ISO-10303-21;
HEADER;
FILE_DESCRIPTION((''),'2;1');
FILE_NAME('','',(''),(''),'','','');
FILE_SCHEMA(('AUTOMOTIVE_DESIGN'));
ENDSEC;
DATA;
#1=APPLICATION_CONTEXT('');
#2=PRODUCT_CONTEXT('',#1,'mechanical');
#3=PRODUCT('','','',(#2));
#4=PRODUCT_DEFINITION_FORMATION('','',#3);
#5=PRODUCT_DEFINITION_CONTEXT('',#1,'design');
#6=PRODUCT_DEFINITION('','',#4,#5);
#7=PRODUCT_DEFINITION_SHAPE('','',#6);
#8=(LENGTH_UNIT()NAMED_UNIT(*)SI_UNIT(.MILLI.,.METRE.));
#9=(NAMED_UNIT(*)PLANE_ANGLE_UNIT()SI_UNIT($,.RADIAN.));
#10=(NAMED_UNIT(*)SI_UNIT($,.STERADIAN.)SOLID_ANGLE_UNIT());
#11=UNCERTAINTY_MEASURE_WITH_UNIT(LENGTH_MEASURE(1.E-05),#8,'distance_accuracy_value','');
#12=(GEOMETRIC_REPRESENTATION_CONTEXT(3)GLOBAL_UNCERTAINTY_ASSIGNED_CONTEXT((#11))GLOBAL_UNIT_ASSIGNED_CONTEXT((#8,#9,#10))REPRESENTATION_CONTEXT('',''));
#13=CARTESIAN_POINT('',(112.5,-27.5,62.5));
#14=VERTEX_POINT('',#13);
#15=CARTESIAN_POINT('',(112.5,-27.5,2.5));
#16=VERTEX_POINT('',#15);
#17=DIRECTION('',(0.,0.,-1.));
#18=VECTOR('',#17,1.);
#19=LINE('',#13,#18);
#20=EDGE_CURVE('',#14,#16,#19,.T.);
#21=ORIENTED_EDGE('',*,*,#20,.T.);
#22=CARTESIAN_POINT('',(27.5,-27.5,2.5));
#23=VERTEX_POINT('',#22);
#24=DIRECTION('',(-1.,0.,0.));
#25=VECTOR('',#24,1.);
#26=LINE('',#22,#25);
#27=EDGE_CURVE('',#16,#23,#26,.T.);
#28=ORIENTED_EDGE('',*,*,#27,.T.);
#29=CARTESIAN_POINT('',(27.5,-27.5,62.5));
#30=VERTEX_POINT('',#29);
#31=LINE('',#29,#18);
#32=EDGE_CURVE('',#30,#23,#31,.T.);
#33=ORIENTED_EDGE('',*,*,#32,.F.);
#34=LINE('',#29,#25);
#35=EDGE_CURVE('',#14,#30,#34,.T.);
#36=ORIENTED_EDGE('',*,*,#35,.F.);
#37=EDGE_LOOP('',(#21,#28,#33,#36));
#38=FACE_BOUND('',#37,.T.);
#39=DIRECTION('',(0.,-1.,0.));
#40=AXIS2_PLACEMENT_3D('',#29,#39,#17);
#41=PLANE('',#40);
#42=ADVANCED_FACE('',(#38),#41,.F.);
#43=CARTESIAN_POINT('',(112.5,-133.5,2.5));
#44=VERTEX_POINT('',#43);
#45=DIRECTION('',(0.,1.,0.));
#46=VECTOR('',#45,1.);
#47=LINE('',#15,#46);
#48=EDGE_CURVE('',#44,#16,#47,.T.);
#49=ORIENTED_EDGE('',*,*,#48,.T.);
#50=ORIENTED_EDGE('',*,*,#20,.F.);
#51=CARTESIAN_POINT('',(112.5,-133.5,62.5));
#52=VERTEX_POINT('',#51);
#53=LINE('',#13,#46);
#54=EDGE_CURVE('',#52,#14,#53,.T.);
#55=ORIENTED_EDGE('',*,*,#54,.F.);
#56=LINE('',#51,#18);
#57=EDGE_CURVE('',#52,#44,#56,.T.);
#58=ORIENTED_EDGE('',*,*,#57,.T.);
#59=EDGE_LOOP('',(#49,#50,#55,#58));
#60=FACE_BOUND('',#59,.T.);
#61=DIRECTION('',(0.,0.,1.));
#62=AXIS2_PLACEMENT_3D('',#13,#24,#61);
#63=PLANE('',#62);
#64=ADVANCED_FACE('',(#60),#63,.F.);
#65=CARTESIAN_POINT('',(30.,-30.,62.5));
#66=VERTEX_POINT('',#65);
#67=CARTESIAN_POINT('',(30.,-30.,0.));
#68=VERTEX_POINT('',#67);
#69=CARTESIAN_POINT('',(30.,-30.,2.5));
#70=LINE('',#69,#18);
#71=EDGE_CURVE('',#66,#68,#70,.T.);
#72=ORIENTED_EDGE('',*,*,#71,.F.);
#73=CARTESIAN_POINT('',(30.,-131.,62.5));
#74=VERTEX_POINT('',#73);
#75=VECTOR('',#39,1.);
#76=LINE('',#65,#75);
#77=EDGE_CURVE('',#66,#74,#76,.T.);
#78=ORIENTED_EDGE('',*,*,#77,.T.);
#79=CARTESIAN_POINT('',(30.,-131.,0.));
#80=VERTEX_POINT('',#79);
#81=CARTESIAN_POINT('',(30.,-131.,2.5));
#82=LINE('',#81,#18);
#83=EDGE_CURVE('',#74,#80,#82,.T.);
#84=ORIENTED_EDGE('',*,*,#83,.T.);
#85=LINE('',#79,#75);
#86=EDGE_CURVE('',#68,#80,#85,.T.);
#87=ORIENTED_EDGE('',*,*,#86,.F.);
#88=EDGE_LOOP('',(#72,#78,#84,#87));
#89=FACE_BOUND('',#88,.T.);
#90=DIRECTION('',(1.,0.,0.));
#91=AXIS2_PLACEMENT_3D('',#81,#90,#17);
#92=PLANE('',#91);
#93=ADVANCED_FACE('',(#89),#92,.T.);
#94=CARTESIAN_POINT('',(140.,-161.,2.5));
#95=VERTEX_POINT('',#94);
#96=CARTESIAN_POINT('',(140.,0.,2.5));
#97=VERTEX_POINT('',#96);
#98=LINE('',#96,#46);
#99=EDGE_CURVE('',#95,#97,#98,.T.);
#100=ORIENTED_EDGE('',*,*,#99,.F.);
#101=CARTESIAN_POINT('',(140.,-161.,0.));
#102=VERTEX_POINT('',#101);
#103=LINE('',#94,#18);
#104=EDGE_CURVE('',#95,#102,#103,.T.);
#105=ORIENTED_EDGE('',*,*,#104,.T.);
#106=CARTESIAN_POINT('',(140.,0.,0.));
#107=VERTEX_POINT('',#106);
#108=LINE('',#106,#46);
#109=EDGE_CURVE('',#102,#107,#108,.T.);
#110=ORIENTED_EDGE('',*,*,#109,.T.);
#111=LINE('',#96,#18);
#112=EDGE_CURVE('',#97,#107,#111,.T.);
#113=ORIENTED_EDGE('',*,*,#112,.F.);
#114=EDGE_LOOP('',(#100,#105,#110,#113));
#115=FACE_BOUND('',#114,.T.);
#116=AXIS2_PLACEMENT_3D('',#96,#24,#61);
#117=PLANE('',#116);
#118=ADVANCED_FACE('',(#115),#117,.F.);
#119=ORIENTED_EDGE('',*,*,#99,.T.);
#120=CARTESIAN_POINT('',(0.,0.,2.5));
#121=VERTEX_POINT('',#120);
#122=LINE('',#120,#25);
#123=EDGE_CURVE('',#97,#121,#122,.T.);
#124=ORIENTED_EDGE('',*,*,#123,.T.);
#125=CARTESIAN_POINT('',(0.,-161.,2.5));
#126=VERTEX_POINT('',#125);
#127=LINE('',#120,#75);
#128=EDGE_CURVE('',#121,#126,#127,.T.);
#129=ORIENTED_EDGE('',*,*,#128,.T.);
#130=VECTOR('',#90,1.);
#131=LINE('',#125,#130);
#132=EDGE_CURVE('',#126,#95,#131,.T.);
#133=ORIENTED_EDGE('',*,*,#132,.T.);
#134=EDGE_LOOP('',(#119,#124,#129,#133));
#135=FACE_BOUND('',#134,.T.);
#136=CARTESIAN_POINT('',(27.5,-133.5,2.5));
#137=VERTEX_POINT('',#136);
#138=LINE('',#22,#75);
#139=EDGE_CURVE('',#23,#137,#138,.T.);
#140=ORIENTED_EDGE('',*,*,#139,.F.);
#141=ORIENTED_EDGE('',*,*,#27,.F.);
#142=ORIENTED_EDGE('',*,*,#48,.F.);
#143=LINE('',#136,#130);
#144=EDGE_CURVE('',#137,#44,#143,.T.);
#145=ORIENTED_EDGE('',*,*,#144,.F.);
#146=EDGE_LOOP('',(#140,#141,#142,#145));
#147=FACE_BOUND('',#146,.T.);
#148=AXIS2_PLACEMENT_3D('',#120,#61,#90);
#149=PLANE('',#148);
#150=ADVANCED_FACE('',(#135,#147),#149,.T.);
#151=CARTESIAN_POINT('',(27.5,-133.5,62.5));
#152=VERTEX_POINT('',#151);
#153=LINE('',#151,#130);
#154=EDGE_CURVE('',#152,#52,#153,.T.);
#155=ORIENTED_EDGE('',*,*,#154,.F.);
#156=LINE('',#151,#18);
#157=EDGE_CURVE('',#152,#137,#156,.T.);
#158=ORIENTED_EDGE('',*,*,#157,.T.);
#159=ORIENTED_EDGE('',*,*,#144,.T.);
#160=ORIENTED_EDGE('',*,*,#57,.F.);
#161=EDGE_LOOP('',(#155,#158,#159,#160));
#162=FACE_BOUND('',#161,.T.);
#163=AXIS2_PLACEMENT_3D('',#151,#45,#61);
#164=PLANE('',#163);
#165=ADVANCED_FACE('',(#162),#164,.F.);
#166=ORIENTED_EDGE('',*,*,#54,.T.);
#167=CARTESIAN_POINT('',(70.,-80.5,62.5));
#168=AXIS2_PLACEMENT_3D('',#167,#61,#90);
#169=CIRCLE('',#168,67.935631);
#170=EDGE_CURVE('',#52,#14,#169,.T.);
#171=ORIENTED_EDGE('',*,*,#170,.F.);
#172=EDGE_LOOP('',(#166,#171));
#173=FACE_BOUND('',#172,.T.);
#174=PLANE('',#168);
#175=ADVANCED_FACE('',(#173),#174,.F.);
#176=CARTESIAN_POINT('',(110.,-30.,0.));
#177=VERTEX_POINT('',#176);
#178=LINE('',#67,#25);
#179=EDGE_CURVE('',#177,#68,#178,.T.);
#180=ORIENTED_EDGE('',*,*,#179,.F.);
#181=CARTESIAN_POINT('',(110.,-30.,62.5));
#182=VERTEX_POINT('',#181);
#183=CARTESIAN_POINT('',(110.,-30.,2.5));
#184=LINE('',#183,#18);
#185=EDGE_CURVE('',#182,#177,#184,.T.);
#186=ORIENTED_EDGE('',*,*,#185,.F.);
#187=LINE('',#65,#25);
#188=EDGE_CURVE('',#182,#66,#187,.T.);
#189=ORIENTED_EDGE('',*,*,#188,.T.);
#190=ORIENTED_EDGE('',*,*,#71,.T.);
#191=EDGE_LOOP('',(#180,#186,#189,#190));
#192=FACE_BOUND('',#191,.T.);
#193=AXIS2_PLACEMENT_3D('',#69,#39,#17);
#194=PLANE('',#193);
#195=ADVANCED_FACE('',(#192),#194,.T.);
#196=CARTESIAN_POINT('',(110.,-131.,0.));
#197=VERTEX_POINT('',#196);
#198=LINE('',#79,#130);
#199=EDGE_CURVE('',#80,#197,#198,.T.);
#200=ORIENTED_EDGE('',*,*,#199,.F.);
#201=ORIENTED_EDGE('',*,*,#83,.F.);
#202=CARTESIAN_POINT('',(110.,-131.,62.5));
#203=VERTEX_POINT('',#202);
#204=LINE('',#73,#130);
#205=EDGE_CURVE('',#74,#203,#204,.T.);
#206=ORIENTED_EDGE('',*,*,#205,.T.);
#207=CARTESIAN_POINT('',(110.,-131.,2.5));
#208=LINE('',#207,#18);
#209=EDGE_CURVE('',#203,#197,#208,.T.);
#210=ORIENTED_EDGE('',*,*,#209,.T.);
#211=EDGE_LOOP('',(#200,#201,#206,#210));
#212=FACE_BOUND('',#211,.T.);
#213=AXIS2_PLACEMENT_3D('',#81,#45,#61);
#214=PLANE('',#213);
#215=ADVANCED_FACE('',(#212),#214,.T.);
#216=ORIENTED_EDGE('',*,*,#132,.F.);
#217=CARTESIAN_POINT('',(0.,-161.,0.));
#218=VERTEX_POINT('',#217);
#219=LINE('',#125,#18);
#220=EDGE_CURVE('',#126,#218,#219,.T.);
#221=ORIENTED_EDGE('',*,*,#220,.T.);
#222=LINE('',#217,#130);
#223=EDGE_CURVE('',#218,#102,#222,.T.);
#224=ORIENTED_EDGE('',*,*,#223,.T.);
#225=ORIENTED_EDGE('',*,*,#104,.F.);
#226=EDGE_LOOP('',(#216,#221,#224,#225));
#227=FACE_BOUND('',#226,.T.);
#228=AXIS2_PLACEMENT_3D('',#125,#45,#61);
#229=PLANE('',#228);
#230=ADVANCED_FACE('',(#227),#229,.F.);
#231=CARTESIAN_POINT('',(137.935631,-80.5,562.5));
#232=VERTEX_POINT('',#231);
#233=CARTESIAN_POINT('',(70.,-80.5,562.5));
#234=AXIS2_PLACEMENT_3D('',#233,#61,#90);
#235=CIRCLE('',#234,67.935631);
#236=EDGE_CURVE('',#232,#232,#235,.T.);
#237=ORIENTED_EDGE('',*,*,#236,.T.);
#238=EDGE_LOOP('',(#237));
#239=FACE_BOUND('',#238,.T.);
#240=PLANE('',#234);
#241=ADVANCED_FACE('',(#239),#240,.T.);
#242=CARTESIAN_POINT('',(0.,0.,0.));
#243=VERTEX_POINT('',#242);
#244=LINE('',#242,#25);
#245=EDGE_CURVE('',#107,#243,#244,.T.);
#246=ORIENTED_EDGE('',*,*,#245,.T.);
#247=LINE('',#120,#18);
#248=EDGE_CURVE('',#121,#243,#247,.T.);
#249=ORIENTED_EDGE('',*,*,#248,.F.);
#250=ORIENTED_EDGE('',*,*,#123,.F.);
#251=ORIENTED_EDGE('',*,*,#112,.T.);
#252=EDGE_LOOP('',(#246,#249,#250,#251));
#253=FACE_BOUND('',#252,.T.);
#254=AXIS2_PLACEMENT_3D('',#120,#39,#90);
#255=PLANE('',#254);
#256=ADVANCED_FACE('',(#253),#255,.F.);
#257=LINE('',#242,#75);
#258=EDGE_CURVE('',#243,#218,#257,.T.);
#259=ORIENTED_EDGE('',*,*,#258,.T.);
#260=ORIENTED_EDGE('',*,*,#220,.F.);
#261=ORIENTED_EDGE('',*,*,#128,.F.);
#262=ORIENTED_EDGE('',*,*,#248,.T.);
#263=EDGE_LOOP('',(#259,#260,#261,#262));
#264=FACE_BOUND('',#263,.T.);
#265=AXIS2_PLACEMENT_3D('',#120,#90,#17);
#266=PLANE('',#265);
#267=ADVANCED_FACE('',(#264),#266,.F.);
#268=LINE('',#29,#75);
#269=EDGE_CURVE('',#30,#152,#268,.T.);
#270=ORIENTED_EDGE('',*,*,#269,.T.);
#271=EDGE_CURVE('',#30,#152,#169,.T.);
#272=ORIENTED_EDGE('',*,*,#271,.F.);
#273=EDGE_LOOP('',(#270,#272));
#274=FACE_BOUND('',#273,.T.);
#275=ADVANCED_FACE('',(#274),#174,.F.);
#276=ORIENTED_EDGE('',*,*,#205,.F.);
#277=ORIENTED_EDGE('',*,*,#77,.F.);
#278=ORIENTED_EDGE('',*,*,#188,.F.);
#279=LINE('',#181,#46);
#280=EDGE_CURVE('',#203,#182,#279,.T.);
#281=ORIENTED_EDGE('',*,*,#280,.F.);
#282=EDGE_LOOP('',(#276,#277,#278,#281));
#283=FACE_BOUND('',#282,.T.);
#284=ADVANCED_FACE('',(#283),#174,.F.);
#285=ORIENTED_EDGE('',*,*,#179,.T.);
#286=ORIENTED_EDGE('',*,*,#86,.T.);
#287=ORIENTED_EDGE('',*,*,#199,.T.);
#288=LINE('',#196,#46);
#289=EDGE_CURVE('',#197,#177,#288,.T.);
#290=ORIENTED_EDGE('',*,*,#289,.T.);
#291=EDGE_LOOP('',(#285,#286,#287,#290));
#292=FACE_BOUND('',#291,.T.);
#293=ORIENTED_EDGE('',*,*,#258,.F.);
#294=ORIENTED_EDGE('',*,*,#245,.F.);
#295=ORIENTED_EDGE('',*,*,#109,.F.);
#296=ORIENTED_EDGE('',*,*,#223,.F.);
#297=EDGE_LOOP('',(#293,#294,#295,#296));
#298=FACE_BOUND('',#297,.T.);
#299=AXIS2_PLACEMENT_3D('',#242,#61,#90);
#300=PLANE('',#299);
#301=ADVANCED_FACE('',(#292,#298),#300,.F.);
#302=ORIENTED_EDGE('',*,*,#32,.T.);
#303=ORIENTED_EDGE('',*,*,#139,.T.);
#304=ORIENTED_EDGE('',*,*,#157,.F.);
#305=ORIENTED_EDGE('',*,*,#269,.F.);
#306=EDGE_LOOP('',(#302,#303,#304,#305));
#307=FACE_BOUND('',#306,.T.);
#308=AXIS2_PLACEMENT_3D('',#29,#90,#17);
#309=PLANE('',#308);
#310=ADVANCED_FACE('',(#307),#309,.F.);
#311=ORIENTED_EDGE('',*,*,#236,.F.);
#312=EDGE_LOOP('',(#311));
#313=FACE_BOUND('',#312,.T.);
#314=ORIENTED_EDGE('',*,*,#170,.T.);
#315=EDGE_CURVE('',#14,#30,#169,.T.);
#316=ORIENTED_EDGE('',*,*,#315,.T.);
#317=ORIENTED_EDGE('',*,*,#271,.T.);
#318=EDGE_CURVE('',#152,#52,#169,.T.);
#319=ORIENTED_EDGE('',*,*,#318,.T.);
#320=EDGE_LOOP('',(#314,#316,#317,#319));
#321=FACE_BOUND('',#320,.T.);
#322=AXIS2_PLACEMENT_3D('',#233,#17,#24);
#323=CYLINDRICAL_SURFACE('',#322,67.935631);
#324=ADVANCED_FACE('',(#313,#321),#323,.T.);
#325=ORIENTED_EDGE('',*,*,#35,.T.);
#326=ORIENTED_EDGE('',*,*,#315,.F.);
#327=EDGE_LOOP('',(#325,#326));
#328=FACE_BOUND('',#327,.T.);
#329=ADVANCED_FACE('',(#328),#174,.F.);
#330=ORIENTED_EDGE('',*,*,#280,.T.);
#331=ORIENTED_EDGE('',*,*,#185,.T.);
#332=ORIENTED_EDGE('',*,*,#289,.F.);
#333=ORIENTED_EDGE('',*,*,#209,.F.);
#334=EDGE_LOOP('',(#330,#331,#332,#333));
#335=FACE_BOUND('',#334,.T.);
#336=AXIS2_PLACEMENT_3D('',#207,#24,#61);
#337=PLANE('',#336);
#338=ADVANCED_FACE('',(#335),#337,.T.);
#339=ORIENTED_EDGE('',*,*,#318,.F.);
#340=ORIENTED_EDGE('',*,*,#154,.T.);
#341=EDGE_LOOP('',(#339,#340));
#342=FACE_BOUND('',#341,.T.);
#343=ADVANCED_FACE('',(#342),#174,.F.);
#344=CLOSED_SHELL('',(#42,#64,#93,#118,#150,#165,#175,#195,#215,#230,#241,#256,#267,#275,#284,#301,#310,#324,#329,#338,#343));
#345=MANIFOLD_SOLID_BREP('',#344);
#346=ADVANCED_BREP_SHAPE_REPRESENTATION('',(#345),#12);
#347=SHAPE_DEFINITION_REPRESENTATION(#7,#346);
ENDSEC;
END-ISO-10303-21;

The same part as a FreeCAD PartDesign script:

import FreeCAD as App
import Part
import Sketcher
from FreeCAD import Vector
Q = App.Units.Quantity

doc = App.newDocument("Part")
params = doc.addObject("Spreadsheet::Sheet", "Params")
for row, (alias, value) in enumerate([
    ("sketch1_width", "140 mm"),
    ("sketch1_width2", "80 mm"),
    ("sketch1_height", "161 mm"),
    ("sketch1_height2", "101 mm"),
    ("pad1_length", "2.5 mm"),
    ("sketch2_width", "85 mm"),
    ("sketch2_width2", "80 mm"),
    ("sketch2_height", "106 mm"),
    ("sketch2_height2", "101 mm"),
    ("pad2_length", "60 mm"),
    ("pad3_length", "500 mm"),
], start=1):
    params.set(f"A{row}", alias)
    params.set(f"B{row}", "=" + value)
    params.setAlias(f"B{row}", alias)

body = doc.addObject("PartDesign::Body", "Body")

# Sketch on XY plane
sketch1 = body.newObject("Sketcher::SketchObject", "Sketch")
sketch1.AttachmentSupport = (doc.getObject("XY_Plane"), [""])
sketch1.MapMode = "FlatFace"
sketch1.addGeometry([
    Part.LineSegment(Vector(0, 0, 0), Vector(0, -161, 0)),  # 0
    Part.LineSegment(Vector(0, -161, 0), Vector(140, -161, 0)),  # 1
    Part.LineSegment(Vector(140, -161, 0), Vector(140, 0, 0)),  # 2
    Part.LineSegment(Vector(140, 0, 0), Vector(0, 0, 0)),  # 3
    Part.LineSegment(Vector(110, -131, 0), Vector(30, -131, 0)),  # 4
    Part.LineSegment(Vector(30, -131, 0), Vector(30, -30, 0)),  # 5
    Part.LineSegment(Vector(30, -30, 0), Vector(110, -30, 0)),  # 6
    Part.LineSegment(Vector(110, -30, 0), Vector(110, -131, 0)),  # 7
], False)
sketch1.addConstraint([
    Sketcher.Constraint("Coincident", 0, 2, 1, 1),
    Sketcher.Constraint("Coincident", 1, 2, 2, 1),
    Sketcher.Constraint("Coincident", 2, 2, 3, 1),
    Sketcher.Constraint("Coincident", 3, 2, 0, 1),
    Sketcher.Constraint("Coincident", 4, 2, 5, 1),
    Sketcher.Constraint("Coincident", 5, 2, 6, 1),
    Sketcher.Constraint("Coincident", 6, 2, 7, 1),
    Sketcher.Constraint("Coincident", 7, 2, 4, 1),
    Sketcher.Constraint("Vertical", 0),
    Sketcher.Constraint("Horizontal", 1),
    Sketcher.Constraint("Vertical", 2),
    Sketcher.Constraint("Horizontal", 3),
    Sketcher.Constraint("Horizontal", 4),
    Sketcher.Constraint("Vertical", 5),
    Sketcher.Constraint("Horizontal", 6),
    Sketcher.Constraint("Vertical", 7),
    Sketcher.Constraint("Coincident", 3, 2, -1, 1),
    Sketcher.Constraint("DistanceX", 1, 1, 1, 2, Q("140 mm")),
    Sketcher.Constraint("DistanceX", 4, 2, 4, 1, Q("80 mm")),
    Sketcher.Constraint("DistanceY", 0, 2, 0, 1, Q("161 mm")),
    Sketcher.Constraint("DistanceY", 5, 1, 5, 2, Q("101 mm")),
    Sketcher.Constraint("DistanceX", -1, 1, 4, 2, Q("30 mm")),
    Sketcher.Constraint("DistanceY", 4, 2, -1, 1, Q("131 mm")),
])
sketch1.setExpression("Constraints[17]", "Params.sketch1_width")
sketch1.setExpression("Constraints[18]", "Params.sketch1_width2")
sketch1.setExpression("Constraints[19]", "Params.sketch1_height")
sketch1.setExpression("Constraints[20]", "Params.sketch1_height2")
pad1 = body.newObject("PartDesign::Pad", "Pad")
pad1.Profile = sketch1
pad1.setExpression("Length", "Params.pad1_length")

# Sketch on XY plane
sketch2 = body.newObject("Sketcher::SketchObject", "Sketch001")
sketch2.AttachmentSupport = (doc.getObject("XY_Plane"), [""])
sketch2.MapMode = "FlatFace"
sketch2.AttachmentOffset = App.Placement(Vector(0, 0, 2.5), App.Rotation())
sketch2.addGeometry([
    Part.LineSegment(Vector(27.5, -27.5, 0), Vector(27.5, -133.5, 0)),  # 0
    Part.LineSegment(Vector(27.5, -133.5, 0), Vector(112.5, -133.5, 0)),  # 1
    Part.LineSegment(Vector(112.5, -133.5, 0), Vector(112.5, -27.5, 0)),  # 2
    Part.LineSegment(Vector(112.5, -27.5, 0), Vector(27.5, -27.5, 0)),  # 3
    Part.LineSegment(Vector(110, -131, 0), Vector(30, -131, 0)),  # 4
    Part.LineSegment(Vector(30, -131, 0), Vector(30, -30, 0)),  # 5
    Part.LineSegment(Vector(30, -30, 0), Vector(110, -30, 0)),  # 6
    Part.LineSegment(Vector(110, -30, 0), Vector(110, -131, 0)),  # 7
], False)
sketch2.addConstraint([
    Sketcher.Constraint("Coincident", 0, 2, 1, 1),
    Sketcher.Constraint("Coincident", 1, 2, 2, 1),
    Sketcher.Constraint("Coincident", 2, 2, 3, 1),
    Sketcher.Constraint("Coincident", 3, 2, 0, 1),
    Sketcher.Constraint("Coincident", 4, 2, 5, 1),
    Sketcher.Constraint("Coincident", 5, 2, 6, 1),
    Sketcher.Constraint("Coincident", 6, 2, 7, 1),
    Sketcher.Constraint("Coincident", 7, 2, 4, 1),
    Sketcher.Constraint("Vertical", 0),
    Sketcher.Constraint("Horizontal", 1),
    Sketcher.Constraint("Vertical", 2),
    Sketcher.Constraint("Horizontal", 3),
    Sketcher.Constraint("Horizontal", 4),
    Sketcher.Constraint("Vertical", 5),
    Sketcher.Constraint("Horizontal", 6),
    Sketcher.Constraint("Vertical", 7),
    Sketcher.Constraint("DistanceX", 1, 1, 1, 2, Q("85 mm")),
    Sketcher.Constraint("DistanceX", 4, 2, 4, 1, Q("80 mm")),
    Sketcher.Constraint("DistanceY", 0, 2, 0, 1, Q("106 mm")),
    Sketcher.Constraint("DistanceY", 5, 1, 5, 2, Q("101 mm")),
    Sketcher.Constraint("DistanceX", -1, 1, 4, 2, Q("30 mm")),
    Sketcher.Constraint("DistanceY", 4, 2, -1, 1, Q("131 mm")),
    Sketcher.Constraint("DistanceX", -1, 1, 0, 2, Q("27.5 mm")),
    Sketcher.Constraint("DistanceY", 0, 2, -1, 1, Q("133.5 mm")),
])
sketch2.setExpression("Constraints[16]", "Params.sketch2_width")
sketch2.setExpression("Constraints[17]", "Params.sketch2_width2")
sketch2.setExpression("Constraints[18]", "Params.sketch2_height")
sketch2.setExpression("Constraints[19]", "Params.sketch2_height2")
pad2 = body.newObject("PartDesign::Pad", "Pad001")
pad2.Profile = sketch2
pad2.setExpression("Length", "Params.pad2_length")

# Sketch on XY plane
sketch3 = body.newObject("Sketcher::SketchObject", "Sketch002")
sketch3.AttachmentSupport = (doc.getObject("XY_Plane"), [""])
sketch3.MapMode = "FlatFace"
sketch3.AttachmentOffset = App.Placement(Vector(0, 0, 62.5), App.Rotation())
sketch3.addGeometry(Part.Circle(Vector(70, -80.5, 0), Vector(0, 0, 1), 67.935631), False)
sketch3.addConstraint([
    Sketcher.Constraint("DistanceX", -1, 1, 0, 3, Q("70 mm")),
    Sketcher.Constraint("DistanceY", 0, 3, -1, 1, Q("80.5 mm")),
    Sketcher.Constraint("Diameter", 0, Q("135.871263 mm")),
])
pad3 = body.newObject("PartDesign::Pad", "Pad002")
pad3.Profile = sketch3
pad3.setExpression("Length", "Params.pad3_length")

doc.recompute()
